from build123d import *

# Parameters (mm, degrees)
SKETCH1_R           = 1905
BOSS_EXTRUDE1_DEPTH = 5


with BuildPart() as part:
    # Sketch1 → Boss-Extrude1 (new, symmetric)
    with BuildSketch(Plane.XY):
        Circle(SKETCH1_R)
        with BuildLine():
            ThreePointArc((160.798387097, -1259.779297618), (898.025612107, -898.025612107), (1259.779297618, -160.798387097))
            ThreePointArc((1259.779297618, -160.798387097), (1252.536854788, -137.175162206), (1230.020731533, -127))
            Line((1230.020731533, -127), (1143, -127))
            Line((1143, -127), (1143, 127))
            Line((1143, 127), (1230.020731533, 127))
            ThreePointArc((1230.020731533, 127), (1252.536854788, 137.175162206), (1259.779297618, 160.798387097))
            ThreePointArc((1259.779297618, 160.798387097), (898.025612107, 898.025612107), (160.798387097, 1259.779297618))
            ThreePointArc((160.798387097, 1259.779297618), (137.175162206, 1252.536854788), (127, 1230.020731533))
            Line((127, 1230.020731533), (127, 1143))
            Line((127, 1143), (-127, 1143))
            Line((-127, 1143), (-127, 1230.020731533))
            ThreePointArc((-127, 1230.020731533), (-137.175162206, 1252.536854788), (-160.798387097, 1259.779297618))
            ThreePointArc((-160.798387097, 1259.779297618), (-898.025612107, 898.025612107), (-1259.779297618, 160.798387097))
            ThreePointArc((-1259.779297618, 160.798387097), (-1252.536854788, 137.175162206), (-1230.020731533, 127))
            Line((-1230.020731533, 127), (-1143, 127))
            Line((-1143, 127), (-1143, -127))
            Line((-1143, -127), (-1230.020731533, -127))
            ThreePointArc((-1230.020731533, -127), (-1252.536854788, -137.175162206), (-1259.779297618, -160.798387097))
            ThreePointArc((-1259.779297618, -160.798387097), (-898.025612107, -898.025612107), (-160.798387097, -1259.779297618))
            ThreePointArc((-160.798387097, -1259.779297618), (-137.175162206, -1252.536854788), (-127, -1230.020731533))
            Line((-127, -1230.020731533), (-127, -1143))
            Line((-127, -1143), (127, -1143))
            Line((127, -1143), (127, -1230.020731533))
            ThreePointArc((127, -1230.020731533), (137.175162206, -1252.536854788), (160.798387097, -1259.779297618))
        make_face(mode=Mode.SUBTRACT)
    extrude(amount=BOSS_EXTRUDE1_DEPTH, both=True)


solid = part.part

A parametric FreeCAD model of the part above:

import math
import FreeCAD as App
import Part
import Sketcher

V = App.Vector
Q = App.Units.Quantity

doc = App.newDocument("Part")
body = doc.addObject("PartDesign::Body", "Body")

sketch1 = body.newObject("Sketcher::SketchObject", "Sketch")
sketch1.AttachmentSupport = (doc.getObject("XY_Plane"), [""])
sketch1.MapMode = "FlatFace"
sketch1.addGeometry([
    Part.Circle(V(0, 0, 0), V(0, 0, 1), 1905),
    Part.ArcOfCircle(Part.Circle(V(0, 0, 0), V(0, 0, 1), 1270), math.radians(-82.726092), math.radians(-7.273908)),
    Part.ArcOfCircle(Part.Circle(V(157, -1230.020732, 0), V(0, 0, 1), 30), math.radians(180), math.radians(277.273908)),
    Part.LineSegment(V(127, -1230.020732, 0), V(127, -1143, 0)),
    Part.LineSegment(V(127, -1143, 0), V(-127, -1143, 0)),
    Part.LineSegment(V(-127, -1143, 0), V(-127, -1230.020732, 0)),
    Part.ArcOfCircle(Part.Circle(V(-157, -1230.020732, 0), V(0, 0, 1), 30), math.radians(-97.273908), math.radians(0)),
    Part.ArcOfCircle(Part.Circle(V(0, 0, 0), V(0, 0, 1), 1270), math.radians(-172.726092), math.radians(-97.273908)),
    Part.ArcOfCircle(Part.Circle(V(-1230.020732, -157, 0), V(0, 0, 1), 30), math.radians(90), math.radians(187.273908)),
    Part.LineSegment(V(-1230.020732, -127, 0), V(-1143, -127, 0)),
    Part.LineSegment(V(-1143, -127, 0), V(-1143, 127, 0)),
    Part.LineSegment(V(-1143, 127, 0), V(-1230.020732, 127, 0)),
    Part.ArcOfCircle(Part.Circle(V(-1230.020732, 157, 0), V(0, 0, 1), 30), math.radians(172.726092), math.radians(270)),
    Part.ArcOfCircle(Part.Circle(V(0, 0, 0), V(0, 0, 1), 1270), math.radians(97.273908), math.radians(172.726092)),
    Part.ArcOfCircle(Part.Circle(V(-157, 1230.020732, 0), V(0, 0, 1), 30), math.radians(0), math.radians(97.273908)),
    Part.LineSegment(V(-127, 1230.020732, 0), V(-127, 1143, 0)),
    Part.LineSegment(V(-127, 1143, 0), V(127, 1143, 0)),
    Part.LineSegment(V(127, 1143, 0), V(127, 1230.020732, 0)),
    Part.ArcOfCircle(Part.Circle(V(157, 1230.020732, 0), V(0, 0, 1), 30), math.radians(82.726092), math.radians(180)),
    Part.ArcOfCircle(Part.Circle(V(0, 0, 0), V(0, 0, 1), 1270), math.radians(7.273908), math.radians(82.726092)),
    Part.ArcOfCircle(Part.Circle(V(1230.020732, 157, 0), V(0, 0, 1), 30), math.radians(-90), math.radians(7.273908)),
    Part.LineSegment(V(1230.020732, 127, 0), V(1143, 127, 0)),
    Part.LineSegment(V(1143, 127, 0), V(1143, -127, 0)),
    Part.LineSegment(V(1143, -127, 0), V(1230.020732, -127, 0)),
    Part.ArcOfCircle(Part.Circle(V(1230.020732, -157, 0), V(0, 0, 1), 30), math.radians(-7.273908), math.radians(90)),
], False)
sketch1.addConstraint([
    Sketcher.Constraint("Tangent", 1, 1, 2, 2),
    Sketcher.Constraint("Tangent", 2, 1, 3, 1),
    Sketcher.Constraint("Coincident", 3, 2, 4, 1),
    Sketcher.Constraint("Coincident", 4, 2, 5, 1),
    Sketcher.Constraint("Tangent", 5, 2, 6, 2),
    Sketcher.Constraint("Tangent", 6, 1, 7, 2),
    Sketcher.Constraint("Tangent", 7, 1, 8, 2),
    Sketcher.Constraint("Tangent", 8, 1, 9, 1),
    Sketcher.Constraint("Coincident", 9, 2, 10, 1),
    Sketcher.Constraint("Coincident", 10, 2, 11, 1),
    Sketcher.Constraint("Tangent", 11, 2, 12, 2),
    Sketcher.Constraint("Tangent", 12, 1, 13, 2),
    Sketcher.Constraint("Tangent", 13, 1, 14, 2),
    Sketcher.Constraint("Tangent", 14, 1, 15, 1),
    Sketcher.Constraint("Coincident", 15, 2, 16, 1),
    Sketcher.Constraint("Coincident", 16, 2, 17, 1),
    Sketcher.Constraint("Tangent", 17, 2, 18, 2),
    Sketcher.Constraint("Tangent", 18, 1, 19, 2),
    Sketcher.Constraint("Tangent", 19, 1, 20, 2),
    Sketcher.Constraint("Tangent", 20, 1, 21, 1),
    Sketcher.Constraint("Coincident", 21, 2, 22, 1),
    Sketcher.Constraint("Coincident", 22, 2, 23, 1),
    Sketcher.Constraint("Tangent", 23, 2, 24, 2),
    Sketcher.Constraint("Tangent", 24, 1, 1, 2),
    Sketcher.Constraint("Vertical", 3),
    Sketcher.Constraint("Horizontal", 4),
    Sketcher.Constraint("Vertical", 5),
    Sketcher.Constraint("Horizontal", 9),
    Sketcher.Constraint("Vertical", 10),
    Sketcher.Constraint("Horizontal", 11),
    Sketcher.Constraint("Vertical", 15),
    Sketcher.Constraint("Horizontal", 16),
    Sketcher.Constraint("Vertical", 17),
    Sketcher.Constraint("Horizontal", 21),
    Sketcher.Constraint("Vertical", 22),
    Sketcher.Constraint("Horizontal", 23),
    Sketcher.Constraint("Coincident", 0, 3, -1, 1),
    Sketcher.Constraint("Coincident", 1, 3, -1, 1),
    Sketcher.Constraint("Coincident", 7, 3, -1, 1),
    Sketcher.Constraint("Coincident", 13, 3, -1, 1),
    Sketcher.Constraint("Coincident", 19, 3, -1, 1),
    Sketcher.Constraint("Equal", 2, 6),
    Sketcher.Constraint("Equal", 1, 7),
    Sketcher.Constraint("Equal", 6, 8),
    Sketcher.Constraint("Equal", 8, 12),
    Sketcher.Constraint("Equal", 7, 13),
    Sketcher.Constraint("Equal", 12, 14),
    Sketcher.Constraint("Equal", 14, 18),
    Sketcher.Constraint("Equal", 13, 19),
    Sketcher.Constraint("Equal", 18, 20),
    Sketcher.Constraint("Equal", 20, 24),
    Sketcher.Constraint("Symmetric", 3, 2, 15, 2, -1, 1),
    Sketcher.Constraint("Symmetric", 9, 2, 21, 2, -1, 1),
    Sketcher.Constraint("Horizontal", 2, 3, 6, 3),
    Sketcher.Constraint("Horizontal", 14, 3, 18, 3),
    Sketcher.Constraint("Horizontal", 12, 3, 20, 3),
    Sketcher.Constraint("Horizontal", 8, 3, 24, 3),
    Sketcher.Constraint("Equal", 23, 3),
    Sketcher.Constraint("Equal", 16, 10),
    Sketcher.Constraint("Diameter", 0, Q("150 in")),
    Sketcher.Constraint("Radius", 1, Q("50 in")),
    Sketcher.Constraint("DistanceX", 4, 2, 4, 1, Q("10 in")),
    Sketcher.Constraint("DistanceY", 3, 2, -1, 1, Q("45 in")),
    Sketcher.Constraint("Radius", 2, 30.0),
])
pad1 = body.newObject("PartDesign::Pad", "Pad")
pad1.Profile = sketch1
pad1.Length = 10
pad1.Midplane = True

doc.recompute()
